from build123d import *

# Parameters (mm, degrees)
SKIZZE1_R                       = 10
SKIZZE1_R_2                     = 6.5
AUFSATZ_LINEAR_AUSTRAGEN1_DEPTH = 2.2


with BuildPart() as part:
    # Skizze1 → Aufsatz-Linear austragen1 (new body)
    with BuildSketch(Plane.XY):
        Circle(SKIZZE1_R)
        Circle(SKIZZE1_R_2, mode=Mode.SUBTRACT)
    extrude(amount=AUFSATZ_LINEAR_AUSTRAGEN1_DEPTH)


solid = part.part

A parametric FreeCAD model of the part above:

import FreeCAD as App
import Part
import Sketcher

doc = App.newDocument("Part")
params = doc.addObject("Spreadsheet::Sheet", "Params")
for row, (alias, value) in enumerate([
    ("sketch1_diameter", "20 mm"),
    ("sketch1_diameter2", "13 mm"),
    ("pad1_length", "2.2 mm"),
], start=1):
    params.set(f"A{row}", alias)
    params.set(f"B{row}", "=" + value)
    params.setAlias(f"B{row}", alias)

body = doc.addObject("PartDesign::Body", "Body")

# Sketch on XY plane
sketch1 = body.newObject("Sketcher::SketchObject", "Sketch")
sketch1.AttachmentSupport = (doc.getObject("XY_Plane"), [""])
sketch1.MapMode = "FlatFace"
sketch1.addGeometry(Part.Circle(App.Vector(0, 0, 0), App.Vector(0, 0, 1), 10), False)
sketch1.addGeometry(Part.Circle(App.Vector(0, 0, 0), App.Vector(0, 0, 1), 6), False)
sketch1.addConstraint(Sketcher.Constraint("Coincident", 0, 3, -1, 1))
sketch1.addConstraint(Sketcher.Constraint("Coincident", 1, 3, -1, 1))
sketch1.addConstraint(Sketcher.Constraint("Diameter", 0, 20.0))
sketch1.addConstraint(Sketcher.Constraint("Diameter", 1, 13.0))
sketch1.setExpression("Constraints[2]", "Params.sketch1_diameter")
sketch1.setExpression("Constraints[3]", "Params.sketch1_diameter2")
pad1 = body.newObject("PartDesign::Pad", "Pad")
pad1.Profile = sketch1
pad1.setExpression("Length", "Params.pad1_length")

doc.recompute()
